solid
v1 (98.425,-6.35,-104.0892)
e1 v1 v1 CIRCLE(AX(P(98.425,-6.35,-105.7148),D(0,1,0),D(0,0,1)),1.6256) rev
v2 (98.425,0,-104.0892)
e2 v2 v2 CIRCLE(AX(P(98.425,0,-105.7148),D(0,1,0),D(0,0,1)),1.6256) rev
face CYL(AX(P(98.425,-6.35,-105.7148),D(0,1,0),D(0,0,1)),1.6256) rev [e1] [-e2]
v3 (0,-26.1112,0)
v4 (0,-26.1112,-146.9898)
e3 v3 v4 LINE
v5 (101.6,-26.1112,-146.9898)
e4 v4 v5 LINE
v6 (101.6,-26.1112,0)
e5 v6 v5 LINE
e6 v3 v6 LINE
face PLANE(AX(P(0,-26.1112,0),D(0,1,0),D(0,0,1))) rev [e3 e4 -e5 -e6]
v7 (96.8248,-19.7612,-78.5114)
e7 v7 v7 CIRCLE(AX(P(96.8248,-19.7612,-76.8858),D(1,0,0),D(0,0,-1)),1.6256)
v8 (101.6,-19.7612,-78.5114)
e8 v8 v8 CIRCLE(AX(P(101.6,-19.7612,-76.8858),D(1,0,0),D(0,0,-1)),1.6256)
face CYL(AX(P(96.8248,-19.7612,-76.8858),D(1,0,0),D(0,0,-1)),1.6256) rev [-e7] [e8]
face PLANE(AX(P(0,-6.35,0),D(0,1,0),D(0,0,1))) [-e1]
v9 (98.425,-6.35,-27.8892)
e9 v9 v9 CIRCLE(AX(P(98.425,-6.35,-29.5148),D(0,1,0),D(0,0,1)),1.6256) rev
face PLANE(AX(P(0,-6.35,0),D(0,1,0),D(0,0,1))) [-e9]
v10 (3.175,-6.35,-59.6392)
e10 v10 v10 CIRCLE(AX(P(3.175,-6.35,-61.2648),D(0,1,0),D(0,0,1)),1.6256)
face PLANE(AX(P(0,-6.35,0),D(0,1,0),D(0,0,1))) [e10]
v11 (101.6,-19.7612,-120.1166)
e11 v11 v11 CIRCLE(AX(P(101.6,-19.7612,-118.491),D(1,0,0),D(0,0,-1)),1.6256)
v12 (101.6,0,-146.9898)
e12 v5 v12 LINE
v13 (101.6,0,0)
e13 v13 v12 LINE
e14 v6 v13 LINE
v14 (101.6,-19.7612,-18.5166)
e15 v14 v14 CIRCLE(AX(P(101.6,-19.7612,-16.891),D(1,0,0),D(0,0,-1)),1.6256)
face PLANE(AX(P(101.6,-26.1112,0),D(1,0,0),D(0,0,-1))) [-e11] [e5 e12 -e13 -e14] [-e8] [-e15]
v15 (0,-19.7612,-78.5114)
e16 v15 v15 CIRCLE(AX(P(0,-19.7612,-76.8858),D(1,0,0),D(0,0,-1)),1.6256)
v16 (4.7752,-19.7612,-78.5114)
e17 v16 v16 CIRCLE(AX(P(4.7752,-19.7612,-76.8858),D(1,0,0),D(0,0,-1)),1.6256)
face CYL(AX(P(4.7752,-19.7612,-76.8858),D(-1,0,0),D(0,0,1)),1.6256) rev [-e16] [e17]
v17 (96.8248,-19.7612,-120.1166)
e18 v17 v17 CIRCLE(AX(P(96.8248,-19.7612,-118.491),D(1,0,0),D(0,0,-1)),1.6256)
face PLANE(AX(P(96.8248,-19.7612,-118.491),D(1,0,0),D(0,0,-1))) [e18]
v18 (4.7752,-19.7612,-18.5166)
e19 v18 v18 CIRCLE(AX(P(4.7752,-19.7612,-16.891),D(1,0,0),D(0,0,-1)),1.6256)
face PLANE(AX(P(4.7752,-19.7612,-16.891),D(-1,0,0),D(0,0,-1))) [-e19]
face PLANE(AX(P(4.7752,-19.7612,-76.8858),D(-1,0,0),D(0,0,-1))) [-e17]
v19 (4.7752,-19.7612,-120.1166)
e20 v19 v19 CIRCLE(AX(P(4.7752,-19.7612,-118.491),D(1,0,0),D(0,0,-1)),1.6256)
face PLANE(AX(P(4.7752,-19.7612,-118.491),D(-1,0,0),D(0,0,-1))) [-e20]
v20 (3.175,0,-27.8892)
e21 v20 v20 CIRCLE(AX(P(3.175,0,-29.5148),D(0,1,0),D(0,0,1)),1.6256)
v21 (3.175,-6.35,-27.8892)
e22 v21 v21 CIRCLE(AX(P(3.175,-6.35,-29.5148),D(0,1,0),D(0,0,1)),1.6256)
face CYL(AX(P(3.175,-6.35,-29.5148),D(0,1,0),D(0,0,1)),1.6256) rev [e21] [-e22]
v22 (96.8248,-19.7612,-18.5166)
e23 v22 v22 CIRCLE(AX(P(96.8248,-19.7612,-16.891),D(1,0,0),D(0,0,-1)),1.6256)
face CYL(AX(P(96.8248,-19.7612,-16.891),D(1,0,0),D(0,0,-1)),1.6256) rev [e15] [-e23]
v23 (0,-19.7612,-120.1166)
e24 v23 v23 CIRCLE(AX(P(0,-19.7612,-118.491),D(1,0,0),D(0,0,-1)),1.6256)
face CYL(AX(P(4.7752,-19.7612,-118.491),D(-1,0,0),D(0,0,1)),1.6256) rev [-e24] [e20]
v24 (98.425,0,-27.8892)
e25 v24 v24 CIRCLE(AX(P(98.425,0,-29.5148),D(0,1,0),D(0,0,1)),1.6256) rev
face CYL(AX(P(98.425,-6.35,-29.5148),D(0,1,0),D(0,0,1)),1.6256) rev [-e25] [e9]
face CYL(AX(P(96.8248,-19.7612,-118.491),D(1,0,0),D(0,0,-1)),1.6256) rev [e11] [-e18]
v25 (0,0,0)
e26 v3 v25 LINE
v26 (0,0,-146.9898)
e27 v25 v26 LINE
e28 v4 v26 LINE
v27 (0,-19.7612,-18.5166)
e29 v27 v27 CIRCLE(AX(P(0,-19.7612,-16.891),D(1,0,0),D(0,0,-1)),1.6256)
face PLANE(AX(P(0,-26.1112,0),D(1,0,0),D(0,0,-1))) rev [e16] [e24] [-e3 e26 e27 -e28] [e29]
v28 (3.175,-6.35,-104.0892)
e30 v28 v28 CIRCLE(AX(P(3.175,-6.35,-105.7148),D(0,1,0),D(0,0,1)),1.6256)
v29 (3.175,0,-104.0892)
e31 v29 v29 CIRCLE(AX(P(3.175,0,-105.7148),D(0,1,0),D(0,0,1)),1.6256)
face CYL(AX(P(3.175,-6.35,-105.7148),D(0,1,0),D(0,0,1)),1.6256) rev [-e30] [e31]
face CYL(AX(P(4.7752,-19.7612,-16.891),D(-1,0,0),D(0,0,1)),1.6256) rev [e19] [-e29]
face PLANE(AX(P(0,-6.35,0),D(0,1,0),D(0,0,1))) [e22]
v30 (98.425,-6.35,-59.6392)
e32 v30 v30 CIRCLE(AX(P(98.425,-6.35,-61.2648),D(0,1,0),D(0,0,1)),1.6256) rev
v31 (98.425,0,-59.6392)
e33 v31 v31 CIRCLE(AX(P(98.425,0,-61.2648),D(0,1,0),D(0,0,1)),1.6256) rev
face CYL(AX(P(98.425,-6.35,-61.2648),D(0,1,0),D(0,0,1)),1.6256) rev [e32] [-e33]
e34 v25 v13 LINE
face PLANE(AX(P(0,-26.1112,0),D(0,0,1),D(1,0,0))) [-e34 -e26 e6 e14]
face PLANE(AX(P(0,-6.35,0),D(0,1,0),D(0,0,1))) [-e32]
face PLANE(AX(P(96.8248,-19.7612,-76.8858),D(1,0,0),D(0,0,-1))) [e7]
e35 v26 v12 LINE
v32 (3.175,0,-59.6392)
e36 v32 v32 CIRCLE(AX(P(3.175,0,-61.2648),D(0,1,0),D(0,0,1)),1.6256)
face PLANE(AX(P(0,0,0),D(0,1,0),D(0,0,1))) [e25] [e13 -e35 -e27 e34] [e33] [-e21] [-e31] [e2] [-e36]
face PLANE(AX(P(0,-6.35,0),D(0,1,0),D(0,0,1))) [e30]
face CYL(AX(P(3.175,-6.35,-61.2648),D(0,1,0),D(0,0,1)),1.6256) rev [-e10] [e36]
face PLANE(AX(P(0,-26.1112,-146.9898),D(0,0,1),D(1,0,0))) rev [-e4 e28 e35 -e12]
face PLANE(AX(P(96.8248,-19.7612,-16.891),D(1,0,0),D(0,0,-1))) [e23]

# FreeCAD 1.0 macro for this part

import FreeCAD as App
import Part
import Sketcher
Q = App.Units.Quantity

doc = App.newDocument("Part")
body = doc.addObject("PartDesign::Body", "Body")

sketch1 = body.newObject("Sketcher::SketchObject", "Sketch")
sketch1.AttachmentSupport = (doc.getObject("XZ_Plane"), [""])
sketch1.MapMode = "FlatFace"
sketch1.addGeometry([
    Part.LineSegment(App.Vector(0, -146.9898, 0), App.Vector(0, 0, 0)),
    Part.LineSegment(App.Vector(0, 0, 0), App.Vector(101.6, 0, 0)),
    Part.LineSegment(App.Vector(101.6, 0, 0), App.Vector(101.6, -146.9898, 0)),
    Part.LineSegment(App.Vector(101.6, -146.9898, 0), App.Vector(0, -146.9898, 0)),
], False)
sketch1.addConstraint([
    Sketcher.Constraint("Coincident", 0, 2, 1, 1),
    Sketcher.Constraint("Coincident", 1, 2, 2, 1),
    Sketcher.Constraint("Coincident", 2, 2, 3, 1),
    Sketcher.Constraint("Coincident", 3, 2, 0, 1),
    Sketcher.Constraint("Vertical", 0),
    Sketcher.Constraint("Horizontal", 1),
    Sketcher.Constraint("Vertical", 2),
    Sketcher.Constraint("Horizontal", 3),
    Sketcher.Constraint("Coincident", 0, 2, -1, 1),
    Sketcher.Constraint("DistanceX", 1, 1, 1, 2, Q("4 in")),
    Sketcher.Constraint("DistanceY", 0, 1, 0, 2, Q("5.787 in")),
])
pad1 = body.newObject("PartDesign::Pad", "Pad")
pad1.Profile = sketch1
pad1.Length = Q("1.028 in")

sketch2 = body.newObject("Sketcher::SketchObject", "Sketch001")
sketch2.AttachmentSupport = (doc.getObject("XZ_Plane"), [""])
sketch2.MapMode = "FlatFace"
sketch2.addGeometry([
    Part.Circle(App.Vector(3.175, -105.7148, 0), App.Vector(0, 0, 1), 1.6256),
    Part.Circle(App.Vector(3.175, -29.5148, 0), App.Vector(0, 0, 1), 1.6256),
    Part.Circle(App.Vector(3.175, -61.2648, 0), App.Vector(0, 0, 1), 1.6256),
    Part.Circle(App.Vector(98.425, -105.7148, 0), App.Vector(0, 0, 1), 1.6256),
    Part.Circle(App.Vector(98.425, -61.2648, 0), App.Vector(0, 0, 1), 1.6256),
    Part.Circle(App.Vector(98.425, -29.5148, 0), App.Vector(0, 0, 1), 1.6256),
], False)
sketch2.addConstraint([
    Sketcher.Constraint("Equal", 0, 1),
    Sketcher.Constraint("Equal", 1, 2),
    Sketcher.Constraint("Equal", 2, 3),
    Sketcher.Constraint("Equal", 3, 4),
    Sketcher.Constraint("Equal", 4, 5),
    Sketcher.Constraint("Horizontal", 0, 3, 3, 3),
    Sketcher.Constraint("Horizontal", 2, 3, 4, 3),
    Sketcher.Constraint("Horizontal", 1, 3, 5, 3),
    Sketcher.Constraint("Vertical", 0, 3, 1, 3),
    Sketcher.Constraint("Vertical", 1, 3, 2, 3),
    Sketcher.Constraint("Vertical", 3, 3, 4, 3),
    Sketcher.Constraint("Vertical", 4, 3, 5, 3),
    Sketcher.Constraint("Diameter", 0, Q("0.128 in")),
    Sketcher.Constraint("DistanceY", 0, 3, 1, 3, Q("3 in")),
    Sketcher.Constraint("DistanceY", 2, 3, 1, 3, Q("1.25 in")),
    Sketcher.Constraint("DistanceX", 0, 3, 3, 3, Q("3.75 in")),
    Sketcher.Constraint("DistanceX", -1, 1, 0, 3, Q("0.125 in")),
    Sketcher.Constraint("DistanceY", 0, 3, -1, 1, Q("4.162 in")),
])
pocket1 = body.newObject("PartDesign::Pocket", "Pocket")
pocket1.Profile = sketch2
pocket1.Length = Q("0.25 in")
pocket1.Reversed = True

sketch3 = body.newObject("Sketcher::SketchObject", "Sketch002")
sketch3.AttachmentSupport = (doc.getObject("YZ_Plane"), [""])
sketch3.MapMode = "FlatFace"
sketch3.AttachmentOffset = App.Placement(App.Vector(0, 0, 4 * 25.4), App.Rotation())
sketch3.addGeometry([
    Part.Circle(App.Vector(-19.7612, -16.891, 0), App.Vector(0, 0, 1), 1.6256),
    Part.Circle(App.Vector(-19.7612, -76.8858, 0), App.Vector(0, 0, 1), 1.6256),
    Part.Circle(App.Vector(-19.7612, -118.491, 0), App.Vector(0, 0, 1), 1.6256),
], False)
sketch3.addConstraint([
    Sketcher.Constraint("Equal", 0, 1),
    Sketcher.Constraint("Equal", 1, 2),
    Sketcher.Constraint("Vertical", 0, 3, 1, 3),
    Sketcher.Constraint("Vertical", 1, 3, 2, 3),
    Sketcher.Constraint("Diameter", 0, Q("0.128 in")),
    Sketcher.Constraint("DistanceY", 2, 3, 0, 3, Q("4 in")),
    Sketcher.Constraint("DistanceX", 0, 3, -1, 1, Q("0.778 in")),
    Sketcher.Constraint("DistanceY", 0, 3, -1, 1, Q("0.665 in")),
    Sketcher.Constraint("DistanceY", 1, 3, -1, 1, Q("3.027 in")),
])
pocket2 = body.newObject("PartDesign::Pocket", "Pocket001")
pocket2.Profile = sketch3
pocket2.Length = Q("0.188 in")
doc.recompute()

datumplane = body.newObject("PartDesign::Plane", "DatumPlane")
datumplane.AttachmentSupport = (doc.getObject("YZ_Plane"), [""])
datumplane.MapMode = "FlatFace"
datumplane.AttachmentOffset = App.Placement(App.Vector(0, 0, 2 * 25.4), App.Rotation())
mirrored = body.newObject("PartDesign::Mirrored", "Mirrored")
mirrored.Originals = [pocket2]
mirrored.MirrorPlane = (datumplane, [""])
body.Tip = mirrored

doc.recompute()
